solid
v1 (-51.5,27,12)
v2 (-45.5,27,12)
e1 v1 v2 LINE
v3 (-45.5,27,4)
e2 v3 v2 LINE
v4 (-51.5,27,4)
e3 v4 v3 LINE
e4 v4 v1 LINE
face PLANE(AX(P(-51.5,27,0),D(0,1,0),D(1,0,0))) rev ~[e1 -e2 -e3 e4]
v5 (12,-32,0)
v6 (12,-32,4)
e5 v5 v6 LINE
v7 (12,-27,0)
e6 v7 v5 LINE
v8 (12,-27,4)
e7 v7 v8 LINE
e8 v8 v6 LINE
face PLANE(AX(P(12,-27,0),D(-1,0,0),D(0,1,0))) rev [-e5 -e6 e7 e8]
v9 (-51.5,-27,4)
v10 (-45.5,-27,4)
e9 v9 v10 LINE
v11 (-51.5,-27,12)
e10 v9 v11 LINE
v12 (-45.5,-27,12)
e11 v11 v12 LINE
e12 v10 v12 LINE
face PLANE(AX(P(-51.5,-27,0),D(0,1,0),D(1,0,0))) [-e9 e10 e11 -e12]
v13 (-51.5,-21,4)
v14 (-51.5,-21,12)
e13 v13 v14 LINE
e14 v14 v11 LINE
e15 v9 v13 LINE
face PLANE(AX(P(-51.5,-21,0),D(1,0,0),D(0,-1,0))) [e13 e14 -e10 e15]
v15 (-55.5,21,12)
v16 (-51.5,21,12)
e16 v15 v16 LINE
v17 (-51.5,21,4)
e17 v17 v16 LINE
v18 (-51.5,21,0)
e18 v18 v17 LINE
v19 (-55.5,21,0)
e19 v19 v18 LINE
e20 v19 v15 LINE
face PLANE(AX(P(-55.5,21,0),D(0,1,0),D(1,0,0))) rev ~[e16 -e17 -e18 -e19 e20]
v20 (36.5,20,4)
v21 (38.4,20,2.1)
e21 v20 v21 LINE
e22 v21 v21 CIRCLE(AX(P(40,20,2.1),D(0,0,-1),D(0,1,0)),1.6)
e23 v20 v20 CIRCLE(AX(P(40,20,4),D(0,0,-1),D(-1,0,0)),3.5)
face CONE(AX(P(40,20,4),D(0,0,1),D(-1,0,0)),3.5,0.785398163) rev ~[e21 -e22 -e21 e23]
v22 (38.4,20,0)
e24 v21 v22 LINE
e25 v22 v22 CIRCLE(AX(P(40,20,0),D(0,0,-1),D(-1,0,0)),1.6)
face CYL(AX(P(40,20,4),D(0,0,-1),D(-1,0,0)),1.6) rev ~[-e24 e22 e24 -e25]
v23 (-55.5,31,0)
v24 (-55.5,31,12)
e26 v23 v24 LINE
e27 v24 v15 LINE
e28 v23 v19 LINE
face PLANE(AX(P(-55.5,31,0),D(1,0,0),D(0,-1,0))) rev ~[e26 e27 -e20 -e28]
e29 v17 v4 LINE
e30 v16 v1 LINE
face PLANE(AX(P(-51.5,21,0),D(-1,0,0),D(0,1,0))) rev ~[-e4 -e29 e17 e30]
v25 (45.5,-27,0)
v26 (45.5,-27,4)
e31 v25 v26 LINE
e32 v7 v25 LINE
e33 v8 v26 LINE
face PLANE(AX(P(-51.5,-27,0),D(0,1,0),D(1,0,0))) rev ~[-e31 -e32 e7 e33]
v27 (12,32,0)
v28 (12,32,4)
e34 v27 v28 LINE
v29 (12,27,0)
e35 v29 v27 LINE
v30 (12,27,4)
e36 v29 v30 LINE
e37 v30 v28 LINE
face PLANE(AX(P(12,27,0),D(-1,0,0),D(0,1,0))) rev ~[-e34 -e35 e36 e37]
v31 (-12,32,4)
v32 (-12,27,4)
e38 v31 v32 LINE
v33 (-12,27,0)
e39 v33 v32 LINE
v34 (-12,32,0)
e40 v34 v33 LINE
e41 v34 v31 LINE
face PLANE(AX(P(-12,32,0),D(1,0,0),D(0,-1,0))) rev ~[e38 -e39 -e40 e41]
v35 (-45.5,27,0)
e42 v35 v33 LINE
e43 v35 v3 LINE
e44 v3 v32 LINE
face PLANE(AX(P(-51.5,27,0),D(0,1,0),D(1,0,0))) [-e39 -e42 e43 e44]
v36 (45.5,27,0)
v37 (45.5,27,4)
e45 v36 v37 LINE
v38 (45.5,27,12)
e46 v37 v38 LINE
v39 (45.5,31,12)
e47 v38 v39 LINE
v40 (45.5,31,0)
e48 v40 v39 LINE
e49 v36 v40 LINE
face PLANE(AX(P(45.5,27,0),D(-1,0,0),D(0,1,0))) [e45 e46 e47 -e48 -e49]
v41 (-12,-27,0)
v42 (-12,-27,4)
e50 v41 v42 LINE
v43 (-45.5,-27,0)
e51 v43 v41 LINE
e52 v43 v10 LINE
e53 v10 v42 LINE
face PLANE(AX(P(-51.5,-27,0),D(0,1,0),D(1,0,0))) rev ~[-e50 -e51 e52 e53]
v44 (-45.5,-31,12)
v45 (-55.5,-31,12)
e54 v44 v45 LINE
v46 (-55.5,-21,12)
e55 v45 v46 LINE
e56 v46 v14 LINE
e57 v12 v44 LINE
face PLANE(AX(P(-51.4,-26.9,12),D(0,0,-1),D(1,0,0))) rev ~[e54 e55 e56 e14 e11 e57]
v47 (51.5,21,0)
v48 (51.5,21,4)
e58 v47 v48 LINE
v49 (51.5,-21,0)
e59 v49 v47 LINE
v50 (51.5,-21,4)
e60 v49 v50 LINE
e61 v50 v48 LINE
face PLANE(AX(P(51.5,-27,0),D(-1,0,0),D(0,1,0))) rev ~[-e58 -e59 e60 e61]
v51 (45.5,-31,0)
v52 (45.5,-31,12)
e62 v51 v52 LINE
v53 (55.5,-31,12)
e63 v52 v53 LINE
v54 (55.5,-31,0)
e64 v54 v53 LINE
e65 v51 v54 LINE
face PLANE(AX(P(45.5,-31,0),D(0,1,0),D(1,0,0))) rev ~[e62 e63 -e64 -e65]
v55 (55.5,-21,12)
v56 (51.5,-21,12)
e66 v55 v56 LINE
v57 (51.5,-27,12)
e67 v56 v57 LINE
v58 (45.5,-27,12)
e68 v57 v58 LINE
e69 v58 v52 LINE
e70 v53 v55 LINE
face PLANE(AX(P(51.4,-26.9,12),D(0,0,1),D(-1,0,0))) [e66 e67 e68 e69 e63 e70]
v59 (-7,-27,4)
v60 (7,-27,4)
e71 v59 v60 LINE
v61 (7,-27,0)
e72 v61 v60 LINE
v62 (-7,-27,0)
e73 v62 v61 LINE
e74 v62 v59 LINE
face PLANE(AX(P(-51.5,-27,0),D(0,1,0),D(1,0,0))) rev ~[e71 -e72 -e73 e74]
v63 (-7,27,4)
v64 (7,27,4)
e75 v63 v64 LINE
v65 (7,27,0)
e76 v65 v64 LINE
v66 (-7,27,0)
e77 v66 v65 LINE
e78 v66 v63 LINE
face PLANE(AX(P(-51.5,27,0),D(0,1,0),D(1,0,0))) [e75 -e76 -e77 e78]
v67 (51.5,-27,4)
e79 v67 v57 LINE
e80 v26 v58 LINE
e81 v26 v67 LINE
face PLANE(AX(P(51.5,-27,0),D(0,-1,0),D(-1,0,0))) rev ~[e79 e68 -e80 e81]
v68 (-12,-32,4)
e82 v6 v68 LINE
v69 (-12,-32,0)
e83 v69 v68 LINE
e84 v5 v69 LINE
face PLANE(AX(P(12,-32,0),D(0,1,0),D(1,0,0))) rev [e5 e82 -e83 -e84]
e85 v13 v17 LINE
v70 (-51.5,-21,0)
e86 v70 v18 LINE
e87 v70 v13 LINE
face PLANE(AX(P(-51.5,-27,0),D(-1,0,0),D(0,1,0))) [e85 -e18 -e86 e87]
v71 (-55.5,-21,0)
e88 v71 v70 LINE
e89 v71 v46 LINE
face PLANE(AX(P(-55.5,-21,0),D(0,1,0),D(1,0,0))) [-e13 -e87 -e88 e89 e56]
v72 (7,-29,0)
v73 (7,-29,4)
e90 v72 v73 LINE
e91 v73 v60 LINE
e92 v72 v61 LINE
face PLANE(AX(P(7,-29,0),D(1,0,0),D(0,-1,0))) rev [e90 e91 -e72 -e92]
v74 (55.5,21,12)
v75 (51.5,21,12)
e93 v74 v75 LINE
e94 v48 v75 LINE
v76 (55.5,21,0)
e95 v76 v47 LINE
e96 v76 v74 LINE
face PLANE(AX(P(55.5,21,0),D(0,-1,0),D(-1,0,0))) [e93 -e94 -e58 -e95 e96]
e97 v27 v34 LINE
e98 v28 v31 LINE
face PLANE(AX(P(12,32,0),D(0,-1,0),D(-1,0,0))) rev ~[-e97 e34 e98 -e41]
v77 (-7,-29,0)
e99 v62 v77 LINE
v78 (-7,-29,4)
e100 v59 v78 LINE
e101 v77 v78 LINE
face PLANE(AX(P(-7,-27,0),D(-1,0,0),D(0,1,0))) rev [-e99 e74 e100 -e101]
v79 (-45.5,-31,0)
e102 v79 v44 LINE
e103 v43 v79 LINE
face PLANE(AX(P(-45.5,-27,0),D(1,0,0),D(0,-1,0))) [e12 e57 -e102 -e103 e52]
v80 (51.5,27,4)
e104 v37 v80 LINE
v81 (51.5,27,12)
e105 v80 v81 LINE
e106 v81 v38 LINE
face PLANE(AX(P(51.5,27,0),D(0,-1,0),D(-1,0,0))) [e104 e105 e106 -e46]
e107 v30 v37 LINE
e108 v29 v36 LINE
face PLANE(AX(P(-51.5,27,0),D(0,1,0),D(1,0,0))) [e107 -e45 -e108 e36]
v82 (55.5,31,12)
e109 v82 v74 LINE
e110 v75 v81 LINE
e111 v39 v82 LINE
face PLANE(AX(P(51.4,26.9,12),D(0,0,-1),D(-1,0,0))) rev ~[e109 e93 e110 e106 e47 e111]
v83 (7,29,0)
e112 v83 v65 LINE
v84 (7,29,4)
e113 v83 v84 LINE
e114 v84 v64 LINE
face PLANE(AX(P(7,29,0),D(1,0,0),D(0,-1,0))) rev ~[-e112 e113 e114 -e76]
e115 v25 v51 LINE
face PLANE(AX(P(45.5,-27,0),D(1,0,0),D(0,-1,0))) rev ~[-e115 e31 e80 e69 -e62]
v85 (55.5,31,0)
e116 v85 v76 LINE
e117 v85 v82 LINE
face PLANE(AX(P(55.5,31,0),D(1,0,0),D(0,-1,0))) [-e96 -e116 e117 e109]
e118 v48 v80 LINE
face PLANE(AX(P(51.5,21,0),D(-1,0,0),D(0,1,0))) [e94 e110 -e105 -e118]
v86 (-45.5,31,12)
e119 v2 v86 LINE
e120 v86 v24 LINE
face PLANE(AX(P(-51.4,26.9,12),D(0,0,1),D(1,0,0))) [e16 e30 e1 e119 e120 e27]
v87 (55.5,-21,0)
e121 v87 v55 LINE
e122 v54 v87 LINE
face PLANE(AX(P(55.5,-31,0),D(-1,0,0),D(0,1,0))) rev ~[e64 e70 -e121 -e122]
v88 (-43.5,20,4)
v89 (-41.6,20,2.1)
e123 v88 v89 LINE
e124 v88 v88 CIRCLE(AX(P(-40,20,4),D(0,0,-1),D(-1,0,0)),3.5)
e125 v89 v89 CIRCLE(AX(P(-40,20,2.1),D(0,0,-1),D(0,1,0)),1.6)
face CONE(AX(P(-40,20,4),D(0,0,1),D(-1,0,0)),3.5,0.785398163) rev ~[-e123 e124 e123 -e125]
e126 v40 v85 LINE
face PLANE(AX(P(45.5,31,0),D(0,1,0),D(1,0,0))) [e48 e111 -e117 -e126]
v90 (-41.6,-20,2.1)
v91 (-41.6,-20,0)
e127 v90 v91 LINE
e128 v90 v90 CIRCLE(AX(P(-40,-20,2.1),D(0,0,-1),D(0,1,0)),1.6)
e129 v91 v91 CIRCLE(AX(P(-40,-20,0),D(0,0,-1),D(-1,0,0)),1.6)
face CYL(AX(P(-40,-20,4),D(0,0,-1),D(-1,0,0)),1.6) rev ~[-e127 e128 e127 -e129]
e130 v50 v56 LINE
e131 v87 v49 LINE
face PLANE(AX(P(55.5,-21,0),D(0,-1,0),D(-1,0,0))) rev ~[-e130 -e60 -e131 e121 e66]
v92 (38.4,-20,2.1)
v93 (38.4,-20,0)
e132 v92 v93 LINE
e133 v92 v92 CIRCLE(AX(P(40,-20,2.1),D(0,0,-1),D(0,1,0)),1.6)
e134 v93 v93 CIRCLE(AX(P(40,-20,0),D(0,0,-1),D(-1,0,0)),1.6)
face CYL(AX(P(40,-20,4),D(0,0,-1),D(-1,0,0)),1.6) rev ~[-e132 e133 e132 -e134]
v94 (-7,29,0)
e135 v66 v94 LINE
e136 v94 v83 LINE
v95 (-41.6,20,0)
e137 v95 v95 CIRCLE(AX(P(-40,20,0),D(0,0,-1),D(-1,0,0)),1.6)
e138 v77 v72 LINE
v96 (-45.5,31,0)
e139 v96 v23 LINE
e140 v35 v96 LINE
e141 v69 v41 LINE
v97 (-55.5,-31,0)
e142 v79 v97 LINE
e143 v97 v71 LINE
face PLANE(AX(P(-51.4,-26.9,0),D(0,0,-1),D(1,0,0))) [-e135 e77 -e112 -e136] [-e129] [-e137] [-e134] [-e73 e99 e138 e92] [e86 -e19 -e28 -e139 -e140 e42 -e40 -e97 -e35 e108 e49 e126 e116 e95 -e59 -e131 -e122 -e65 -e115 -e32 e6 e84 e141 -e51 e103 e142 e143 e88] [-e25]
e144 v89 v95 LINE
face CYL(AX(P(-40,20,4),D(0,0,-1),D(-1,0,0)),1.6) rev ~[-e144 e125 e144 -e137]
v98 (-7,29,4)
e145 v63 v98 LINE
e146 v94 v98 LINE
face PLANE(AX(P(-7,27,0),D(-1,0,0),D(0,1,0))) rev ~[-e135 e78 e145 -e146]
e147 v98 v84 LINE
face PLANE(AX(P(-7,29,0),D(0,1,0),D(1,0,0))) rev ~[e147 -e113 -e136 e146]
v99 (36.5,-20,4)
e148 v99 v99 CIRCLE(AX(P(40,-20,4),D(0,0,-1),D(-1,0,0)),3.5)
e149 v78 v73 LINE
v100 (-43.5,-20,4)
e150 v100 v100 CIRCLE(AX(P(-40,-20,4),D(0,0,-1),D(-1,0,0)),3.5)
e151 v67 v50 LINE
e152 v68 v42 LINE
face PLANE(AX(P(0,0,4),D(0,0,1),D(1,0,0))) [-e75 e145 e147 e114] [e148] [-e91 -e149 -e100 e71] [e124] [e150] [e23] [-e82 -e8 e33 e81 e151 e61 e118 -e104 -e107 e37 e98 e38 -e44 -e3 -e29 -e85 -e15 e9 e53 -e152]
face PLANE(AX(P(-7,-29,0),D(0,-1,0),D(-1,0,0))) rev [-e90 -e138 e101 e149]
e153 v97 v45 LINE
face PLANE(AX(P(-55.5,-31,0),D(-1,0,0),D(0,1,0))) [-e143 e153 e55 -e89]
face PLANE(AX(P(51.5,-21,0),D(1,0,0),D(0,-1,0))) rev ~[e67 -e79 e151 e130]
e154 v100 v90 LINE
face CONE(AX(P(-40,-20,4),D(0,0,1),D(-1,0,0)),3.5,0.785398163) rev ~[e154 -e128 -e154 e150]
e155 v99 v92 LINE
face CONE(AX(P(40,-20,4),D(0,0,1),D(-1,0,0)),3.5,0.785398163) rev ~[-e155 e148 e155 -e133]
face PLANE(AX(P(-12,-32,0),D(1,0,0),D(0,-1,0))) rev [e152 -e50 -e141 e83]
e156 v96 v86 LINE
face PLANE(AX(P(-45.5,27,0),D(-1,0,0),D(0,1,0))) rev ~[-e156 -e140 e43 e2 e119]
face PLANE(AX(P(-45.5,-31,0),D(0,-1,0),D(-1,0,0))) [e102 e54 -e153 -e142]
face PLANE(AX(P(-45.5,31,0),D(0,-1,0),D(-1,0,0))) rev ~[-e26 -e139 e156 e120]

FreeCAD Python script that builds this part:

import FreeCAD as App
import Part
import Sketcher

V = App.Vector

doc = App.newDocument("Part")
body = doc.addObject("PartDesign::Body", "Body")

# Sketch on XY plane
sketch1 = body.newObject("Sketcher::SketchObject", "Sketch")
sketch1.AttachmentSupport = (doc.getObject("XY_Plane"), [""])
sketch1.MapMode = "FlatFace"
sketch1.addGeometry(Part.LineSegment(V(-52, 27, 0), V(-52, -27, 0)), False)
sketch1.addGeometry(Part.LineSegment(V(-52, -27, 0), V(52, -27, 0)), False)
sketch1.addGeometry(Part.LineSegment(V(52, -27, 0), V(52, 27, 0)), False)
sketch1.addGeometry(Part.LineSegment(V(52, 27, 0), V(-52, 27, 0)), False)
sketch1.addConstraint(Sketcher.Constraint("Coincident", 0, 2, 1, 1))
sketch1.addConstraint(Sketcher.Constraint("Coincident", 1, 2, 2, 1))
sketch1.addConstraint(Sketcher.Constraint("Coincident", 2, 2, 3, 1))
sketch1.addConstraint(Sketcher.Constraint("Coincident", 3, 2, 0, 1))
sketch1.addConstraint(Sketcher.Constraint("Vertical", 0))
sketch1.addConstraint(Sketcher.Constraint("Horizontal", 1))
sketch1.addConstraint(Sketcher.Constraint("Vertical", 2))
sketch1.addConstraint(Sketcher.Constraint("Horizontal", 3))
sketch1.addConstraint(Sketcher.Constraint("Symmetric", 0, 2, 2, 2, -1, 1))
sketch1.addConstraint(Sketcher.Constraint("DistanceX", 1, 1, 1, 2, 103.0))
sketch1.addConstraint(Sketcher.Constraint("DistanceY", 0, 2, 0, 1, 54.0))
pad1 = body.newObject("PartDesign::Pad", "Pad")
pad1.Profile = sketch1
pad1.Length = 4

# Sketch on XY plane
sketch2 = body.newObject("Sketcher::SketchObject", "Sketch001")
sketch2.AttachmentSupport = (doc.getObject("XY_Plane"), [""])
sketch2.MapMode = "FlatFace"
sketch2.addGeometry(Part.LineSegment(V(-51.5, 21, 0), V(-51.5, 27, 0)), False)
sketch2.addGeometry(Part.LineSegment(V(-51.5, 27, 0), V(-45.5, 27, 0)), False)
sketch2.addGeometry(Part.LineSegment(V(-45.5, 27, 0), V(-45.5, 31, 0)), False)
sketch2.addGeometry(Part.LineSegment(V(-45.5, 31, 0), V(-55.5, 31, 0)), False)
sketch2.addGeometry(Part.LineSegment(V(-55.5, 31, 0), V(-55.5, 21, 0)), False)
sketch2.addGeometry(Part.LineSegment(V(-55.5, 21, 0), V(-51.5, 21, 0)), False)
sketch2.addConstraint(Sketcher.Constraint("Coincident", 0, 2, 1, 1))
sketch2.addConstraint(Sketcher.Constraint("Coincident", 1, 2, 2, 1))
sketch2.addConstraint(Sketcher.Constraint("Coincident", 2, 2, 3, 1))
sketch2.addConstraint(Sketcher.Constraint("Coincident", 3, 2, 4, 1))
sketch2.addConstraint(Sketcher.Constraint("Coincident", 4, 2, 5, 1))
sketch2.addConstraint(Sketcher.Constraint("Coincident", 5, 2, 0, 1))
sketch2.addConstraint(Sketcher.Constraint("Vertical", 0))
sketch2.addConstraint(Sketcher.Constraint("Horizontal", 1))
sketch2.addConstraint(Sketcher.Constraint("Vertical", 2))
sketch2.addConstraint(Sketcher.Constraint("Horizontal", 3))
sketch2.addConstraint(Sketcher.Constraint("Vertical", 4))
sketch2.addConstraint(Sketcher.Constraint("Horizontal", 5))
sketch2.addConstraint(Sketcher.Constraint("Equal", 1, 0))
sketch2.addConstraint(Sketcher.Constraint("Equal", 5, 2))
sketch2.addConstraint(Sketcher.Constraint("DistanceX", 1, 1, 1, 2, 6.0))
sketch2.addConstraint(Sketcher.Constraint("DistanceX", 3, 2, 3, 1, 10.0))
sketch2.addConstraint(Sketcher.Constraint("DistanceY", -1, 1, 0, 2, 27.0))
sketch2.addConstraint(Sketcher.Constraint("DistanceX", 0, 2, -1, 1, 51.5))
pad2 = body.newObject("PartDesign::Pad", "Pad001")
pad2.Profile = sketch2
pad2.Length = 12

# Sketch on XY plane
sketch3 = body.newObject("Sketcher::SketchObject", "Sketch002")
sketch3.AttachmentSupport = (doc.getObject("XY_Plane"), [""])
sketch3.MapMode = "FlatFace"
sketch3.addGeometry(Part.LineSegment(V(51.5, 21, 0), V(51.5, 27, 0)), False)
sketch3.addGeometry(Part.LineSegment(V(51.5, 27, 0), V(45.5, 27, 0)), False)
sketch3.addGeometry(Part.LineSegment(V(45.5, 27, 0), V(45.5, 31, 0)), False)
sketch3.addGeometry(Part.LineSegment(V(45.5, 31, 0), V(55.5, 31, 0)), False)
sketch3.addGeometry(Part.LineSegment(V(55.5, 31, 0), V(55.5, 21, 0)), False)
sketch3.addGeometry(Part.LineSegment(V(55.5, 21, 0), V(51.5, 21, 0)), False)
sketch3.addConstraint(Sketcher.Constraint("Coincident", 0, 2, 1, 1))
sketch3.addConstraint(Sketcher.Constraint("Coincident", 1, 2, 2, 1))
sketch3.addConstraint(Sketcher.Constraint("Coincident", 2, 2, 3, 1))
sketch3.addConstraint(Sketcher.Constraint("Coincident", 3, 2, 4, 1))
sketch3.addConstraint(Sketcher.Constraint("Coincident", 4, 2, 5, 1))
sketch3.addConstraint(Sketcher.Constraint("Coincident", 5, 2, 0, 1))
sketch3.addConstraint(Sketcher.Constraint("Vertical", 0))
sketch3.addConstraint(Sketcher.Constraint("Horizontal", 1))
sketch3.addConstraint(Sketcher.Constraint("Vertical", 2))
sketch3.addConstraint(Sketcher.Constraint("Horizontal", 3))
sketch3.addConstraint(Sketcher.Constraint("Vertical", 4))
sketch3.addConstraint(Sketcher.Constraint("Horizontal", 5))
sketch3.addConstraint(Sketcher.Constraint("Equal", 1, 0))
sketch3.addConstraint(Sketcher.Constraint("Equal", 5, 2))
sketch3.addConstraint(Sketcher.Constraint("DistanceX", 1, 2, 1, 1, 6.0))
sketch3.addConstraint(Sketcher.Constraint("DistanceX", 3, 1, 3, 2, 10.0))
sketch3.addConstraint(Sketcher.Constraint("DistanceY", -1, 1, 0, 2, 27.0))
sketch3.addConstraint(Sketcher.Constraint("DistanceX", -1, 1, 0, 2, 51.5))
pad3 = body.newObject("PartDesign::Pad", "Pad002")
pad3.Profile = sketch3
pad3.Length = 12
doc.recompute()

polarpattern = body.newObject("PartDesign::PolarPattern", "PolarPattern")
polarpattern.Originals = [pad2, pad3]
polarpattern.Axis = (doc.getObject("Z_Axis"), [""])
polarpattern.Angle = 360
polarpattern.Occurrences = 2
body.Tip = polarpattern

# Sketch on XY plane
sketch4 = body.newObject("Sketcher::SketchObject", "Sketch003")
sketch4.AttachmentSupport = (doc.getObject("XY_Plane"), [""])
sketch4.MapMode = "FlatFace"
sketch4.AttachmentOffset = App.Placement(V(0, 0, 4), App.Rotation())
sketch4.addGeometry(Part.Circle(V(-40, 20, 0), V(0, 0, 1), 1.6), False)
sketch4.addGeometry(Part.Circle(V(40, 20, 0), V(0, 0, 1), 1.6), False)
sketch4.addGeometry(Part.Circle(V(40, -20, 0), V(0, 0, 1), 1.6), False)
sketch4.addGeometry(Part.Circle(V(-40, -20, 0), V(0, 0, 1), 1.6), False)
sketch4.addConstraint(Sketcher.Constraint("Equal", 0, 1))
sketch4.addConstraint(Sketcher.Constraint("Equal", 1, 2))
sketch4.addConstraint(Sketcher.Constraint("Equal", 2, 3))
sketch4.addConstraint(Sketcher.Constraint("Symmetric", 0, 3, 2, 3, -1, 1))
sketch4.addConstraint(Sketcher.Constraint("Symmetric", 1, 3, 3, 3, -1, 1))
sketch4.addConstraint(Sketcher.Constraint("Symmetric", 0, 3, 1, 3, -2))
sketch4.addConstraint(Sketcher.Constraint("Diameter", 0, 3.2))
sketch4.addConstraint(Sketcher.Constraint("DistanceX", 0, 3, -1, 1, 40.0))
sketch4.addConstraint(Sketcher.Constraint("DistanceY", -1, 1, 0, 3, 20.0))
doc.recompute()
hole = body.newObject("PartDesign::Hole", "Hole")
hole.Profile = sketch4
hole.ThreadType = "None"
hole.Diameter = 3.2
hole.DepthType = "ThroughAll"
hole.HoleCutType = "Countersink"
hole.HoleCutDiameter = 7
hole.HoleCutCountersinkAngle = 90

# Sketch on XY plane
sketch5 = body.newObject("Sketcher::SketchObject", "Sketch004")
sketch5.AttachmentSupport = (doc.getObject("XY_Plane"), [""])
sketch5.MapMode = "FlatFace"
sketch5.addGeometry(Part.LineSegment(V(-7, 27, 0), V(-7, 29, 0)), False)
sketch5.addGeometry(Part.LineSegment(V(-7, 29, 0), V(7, 29, 0)), False)
sketch5.addGeometry(Part.LineSegment(V(7, 29, 0), V(7, 27, 0)), False)
sketch5.addGeometry(Part.LineSegment(V(7, 27, 0), V(12, 27, 0)), False)
sketch5.addGeometry(Part.LineSegment(V(12, 27, 0), V(12, 32, 0)), False)
sketch5.addGeometry(Part.LineSegment(V(12, 32, 0), V(-12, 32, 0)), False)
sketch5.addGeometry(Part.LineSegment(V(-12, 32, 0), V(-12, 27, 0)), False)
sketch5.addGeometry(Part.LineSegment(V(-12, 27, 0), V(-7, 27, 0)), False)
sketch5.addConstraint(Sketcher.Constraint("Coincident", 0, 2, 1, 1))
sketch5.addConstraint(Sketcher.Constraint("Coincident", 1, 2, 2, 1))
sketch5.addConstraint(Sketcher.Constraint("Coincident", 2, 2, 3, 1))
sketch5.addConstraint(Sketcher.Constraint("Coincident", 3, 2, 4, 1))
sketch5.addConstraint(Sketcher.Constraint("Coincident", 4, 2, 5, 1))
sketch5.addConstraint(Sketcher.Constraint("Coincident", 5, 2, 6, 1))
sketch5.addConstraint(Sketcher.Constraint("Coincident", 6, 2, 7, 1))
sketch5.addConstraint(Sketcher.Constraint("Coincident", 7, 2, 0, 1))
sketch5.addConstraint(Sketcher.Constraint("Vertical", 0))
sketch5.addConstraint(Sketcher.Constraint("Horizontal", 1))
sketch5.addConstraint(Sketcher.Constraint("Vertical", 2))
sketch5.addConstraint(Sketcher.Constraint("Horizontal", 3))
sketch5.addConstraint(Sketcher.Constraint("Vertical", 4))
sketch5.addConstraint(Sketcher.Constraint("Horizontal", 5))
sketch5.addConstraint(Sketcher.Constraint("Vertical", 6))
sketch5.addConstraint(Sketcher.Constraint("Horizontal", 7))
sketch5.addConstraint(Sketcher.Constraint("Symmetric", 3, 2, 6, 2, -2))
sketch5.addConstraint(Sketcher.Constraint("Equal", 3, 7))
sketch5.addConstraint(Sketcher.Constraint("Equal", 7, 4))
sketch5.addConstraint(Sketcher.Constraint("DistanceX", 1, 1, 1, 2, 14.0))
sketch5.addConstraint(Sketcher.Constraint("DistanceX", 3, 1, 3, 2, 5.0))
sketch5.addConstraint(Sketcher.Constraint("DistanceY", 0, 1, 0, 2, 2.0))
sketch5.addConstraint(Sketcher.Constraint("DistanceY", -1, 1, 0, 2, 29.0))
pad4 = body.newObject("PartDesign::Pad", "Pad003")
pad4.Profile = sketch5
pad4.Length = 4
doc.recompute()

mirrored = body.newObject("PartDesign::Mirrored", "Mirrored")
mirrored.Originals = [pad4]
mirrored.MirrorPlane = (doc.getObject("XZ_Plane"), [""])
body.Tip = mirrored

doc.recompute()
